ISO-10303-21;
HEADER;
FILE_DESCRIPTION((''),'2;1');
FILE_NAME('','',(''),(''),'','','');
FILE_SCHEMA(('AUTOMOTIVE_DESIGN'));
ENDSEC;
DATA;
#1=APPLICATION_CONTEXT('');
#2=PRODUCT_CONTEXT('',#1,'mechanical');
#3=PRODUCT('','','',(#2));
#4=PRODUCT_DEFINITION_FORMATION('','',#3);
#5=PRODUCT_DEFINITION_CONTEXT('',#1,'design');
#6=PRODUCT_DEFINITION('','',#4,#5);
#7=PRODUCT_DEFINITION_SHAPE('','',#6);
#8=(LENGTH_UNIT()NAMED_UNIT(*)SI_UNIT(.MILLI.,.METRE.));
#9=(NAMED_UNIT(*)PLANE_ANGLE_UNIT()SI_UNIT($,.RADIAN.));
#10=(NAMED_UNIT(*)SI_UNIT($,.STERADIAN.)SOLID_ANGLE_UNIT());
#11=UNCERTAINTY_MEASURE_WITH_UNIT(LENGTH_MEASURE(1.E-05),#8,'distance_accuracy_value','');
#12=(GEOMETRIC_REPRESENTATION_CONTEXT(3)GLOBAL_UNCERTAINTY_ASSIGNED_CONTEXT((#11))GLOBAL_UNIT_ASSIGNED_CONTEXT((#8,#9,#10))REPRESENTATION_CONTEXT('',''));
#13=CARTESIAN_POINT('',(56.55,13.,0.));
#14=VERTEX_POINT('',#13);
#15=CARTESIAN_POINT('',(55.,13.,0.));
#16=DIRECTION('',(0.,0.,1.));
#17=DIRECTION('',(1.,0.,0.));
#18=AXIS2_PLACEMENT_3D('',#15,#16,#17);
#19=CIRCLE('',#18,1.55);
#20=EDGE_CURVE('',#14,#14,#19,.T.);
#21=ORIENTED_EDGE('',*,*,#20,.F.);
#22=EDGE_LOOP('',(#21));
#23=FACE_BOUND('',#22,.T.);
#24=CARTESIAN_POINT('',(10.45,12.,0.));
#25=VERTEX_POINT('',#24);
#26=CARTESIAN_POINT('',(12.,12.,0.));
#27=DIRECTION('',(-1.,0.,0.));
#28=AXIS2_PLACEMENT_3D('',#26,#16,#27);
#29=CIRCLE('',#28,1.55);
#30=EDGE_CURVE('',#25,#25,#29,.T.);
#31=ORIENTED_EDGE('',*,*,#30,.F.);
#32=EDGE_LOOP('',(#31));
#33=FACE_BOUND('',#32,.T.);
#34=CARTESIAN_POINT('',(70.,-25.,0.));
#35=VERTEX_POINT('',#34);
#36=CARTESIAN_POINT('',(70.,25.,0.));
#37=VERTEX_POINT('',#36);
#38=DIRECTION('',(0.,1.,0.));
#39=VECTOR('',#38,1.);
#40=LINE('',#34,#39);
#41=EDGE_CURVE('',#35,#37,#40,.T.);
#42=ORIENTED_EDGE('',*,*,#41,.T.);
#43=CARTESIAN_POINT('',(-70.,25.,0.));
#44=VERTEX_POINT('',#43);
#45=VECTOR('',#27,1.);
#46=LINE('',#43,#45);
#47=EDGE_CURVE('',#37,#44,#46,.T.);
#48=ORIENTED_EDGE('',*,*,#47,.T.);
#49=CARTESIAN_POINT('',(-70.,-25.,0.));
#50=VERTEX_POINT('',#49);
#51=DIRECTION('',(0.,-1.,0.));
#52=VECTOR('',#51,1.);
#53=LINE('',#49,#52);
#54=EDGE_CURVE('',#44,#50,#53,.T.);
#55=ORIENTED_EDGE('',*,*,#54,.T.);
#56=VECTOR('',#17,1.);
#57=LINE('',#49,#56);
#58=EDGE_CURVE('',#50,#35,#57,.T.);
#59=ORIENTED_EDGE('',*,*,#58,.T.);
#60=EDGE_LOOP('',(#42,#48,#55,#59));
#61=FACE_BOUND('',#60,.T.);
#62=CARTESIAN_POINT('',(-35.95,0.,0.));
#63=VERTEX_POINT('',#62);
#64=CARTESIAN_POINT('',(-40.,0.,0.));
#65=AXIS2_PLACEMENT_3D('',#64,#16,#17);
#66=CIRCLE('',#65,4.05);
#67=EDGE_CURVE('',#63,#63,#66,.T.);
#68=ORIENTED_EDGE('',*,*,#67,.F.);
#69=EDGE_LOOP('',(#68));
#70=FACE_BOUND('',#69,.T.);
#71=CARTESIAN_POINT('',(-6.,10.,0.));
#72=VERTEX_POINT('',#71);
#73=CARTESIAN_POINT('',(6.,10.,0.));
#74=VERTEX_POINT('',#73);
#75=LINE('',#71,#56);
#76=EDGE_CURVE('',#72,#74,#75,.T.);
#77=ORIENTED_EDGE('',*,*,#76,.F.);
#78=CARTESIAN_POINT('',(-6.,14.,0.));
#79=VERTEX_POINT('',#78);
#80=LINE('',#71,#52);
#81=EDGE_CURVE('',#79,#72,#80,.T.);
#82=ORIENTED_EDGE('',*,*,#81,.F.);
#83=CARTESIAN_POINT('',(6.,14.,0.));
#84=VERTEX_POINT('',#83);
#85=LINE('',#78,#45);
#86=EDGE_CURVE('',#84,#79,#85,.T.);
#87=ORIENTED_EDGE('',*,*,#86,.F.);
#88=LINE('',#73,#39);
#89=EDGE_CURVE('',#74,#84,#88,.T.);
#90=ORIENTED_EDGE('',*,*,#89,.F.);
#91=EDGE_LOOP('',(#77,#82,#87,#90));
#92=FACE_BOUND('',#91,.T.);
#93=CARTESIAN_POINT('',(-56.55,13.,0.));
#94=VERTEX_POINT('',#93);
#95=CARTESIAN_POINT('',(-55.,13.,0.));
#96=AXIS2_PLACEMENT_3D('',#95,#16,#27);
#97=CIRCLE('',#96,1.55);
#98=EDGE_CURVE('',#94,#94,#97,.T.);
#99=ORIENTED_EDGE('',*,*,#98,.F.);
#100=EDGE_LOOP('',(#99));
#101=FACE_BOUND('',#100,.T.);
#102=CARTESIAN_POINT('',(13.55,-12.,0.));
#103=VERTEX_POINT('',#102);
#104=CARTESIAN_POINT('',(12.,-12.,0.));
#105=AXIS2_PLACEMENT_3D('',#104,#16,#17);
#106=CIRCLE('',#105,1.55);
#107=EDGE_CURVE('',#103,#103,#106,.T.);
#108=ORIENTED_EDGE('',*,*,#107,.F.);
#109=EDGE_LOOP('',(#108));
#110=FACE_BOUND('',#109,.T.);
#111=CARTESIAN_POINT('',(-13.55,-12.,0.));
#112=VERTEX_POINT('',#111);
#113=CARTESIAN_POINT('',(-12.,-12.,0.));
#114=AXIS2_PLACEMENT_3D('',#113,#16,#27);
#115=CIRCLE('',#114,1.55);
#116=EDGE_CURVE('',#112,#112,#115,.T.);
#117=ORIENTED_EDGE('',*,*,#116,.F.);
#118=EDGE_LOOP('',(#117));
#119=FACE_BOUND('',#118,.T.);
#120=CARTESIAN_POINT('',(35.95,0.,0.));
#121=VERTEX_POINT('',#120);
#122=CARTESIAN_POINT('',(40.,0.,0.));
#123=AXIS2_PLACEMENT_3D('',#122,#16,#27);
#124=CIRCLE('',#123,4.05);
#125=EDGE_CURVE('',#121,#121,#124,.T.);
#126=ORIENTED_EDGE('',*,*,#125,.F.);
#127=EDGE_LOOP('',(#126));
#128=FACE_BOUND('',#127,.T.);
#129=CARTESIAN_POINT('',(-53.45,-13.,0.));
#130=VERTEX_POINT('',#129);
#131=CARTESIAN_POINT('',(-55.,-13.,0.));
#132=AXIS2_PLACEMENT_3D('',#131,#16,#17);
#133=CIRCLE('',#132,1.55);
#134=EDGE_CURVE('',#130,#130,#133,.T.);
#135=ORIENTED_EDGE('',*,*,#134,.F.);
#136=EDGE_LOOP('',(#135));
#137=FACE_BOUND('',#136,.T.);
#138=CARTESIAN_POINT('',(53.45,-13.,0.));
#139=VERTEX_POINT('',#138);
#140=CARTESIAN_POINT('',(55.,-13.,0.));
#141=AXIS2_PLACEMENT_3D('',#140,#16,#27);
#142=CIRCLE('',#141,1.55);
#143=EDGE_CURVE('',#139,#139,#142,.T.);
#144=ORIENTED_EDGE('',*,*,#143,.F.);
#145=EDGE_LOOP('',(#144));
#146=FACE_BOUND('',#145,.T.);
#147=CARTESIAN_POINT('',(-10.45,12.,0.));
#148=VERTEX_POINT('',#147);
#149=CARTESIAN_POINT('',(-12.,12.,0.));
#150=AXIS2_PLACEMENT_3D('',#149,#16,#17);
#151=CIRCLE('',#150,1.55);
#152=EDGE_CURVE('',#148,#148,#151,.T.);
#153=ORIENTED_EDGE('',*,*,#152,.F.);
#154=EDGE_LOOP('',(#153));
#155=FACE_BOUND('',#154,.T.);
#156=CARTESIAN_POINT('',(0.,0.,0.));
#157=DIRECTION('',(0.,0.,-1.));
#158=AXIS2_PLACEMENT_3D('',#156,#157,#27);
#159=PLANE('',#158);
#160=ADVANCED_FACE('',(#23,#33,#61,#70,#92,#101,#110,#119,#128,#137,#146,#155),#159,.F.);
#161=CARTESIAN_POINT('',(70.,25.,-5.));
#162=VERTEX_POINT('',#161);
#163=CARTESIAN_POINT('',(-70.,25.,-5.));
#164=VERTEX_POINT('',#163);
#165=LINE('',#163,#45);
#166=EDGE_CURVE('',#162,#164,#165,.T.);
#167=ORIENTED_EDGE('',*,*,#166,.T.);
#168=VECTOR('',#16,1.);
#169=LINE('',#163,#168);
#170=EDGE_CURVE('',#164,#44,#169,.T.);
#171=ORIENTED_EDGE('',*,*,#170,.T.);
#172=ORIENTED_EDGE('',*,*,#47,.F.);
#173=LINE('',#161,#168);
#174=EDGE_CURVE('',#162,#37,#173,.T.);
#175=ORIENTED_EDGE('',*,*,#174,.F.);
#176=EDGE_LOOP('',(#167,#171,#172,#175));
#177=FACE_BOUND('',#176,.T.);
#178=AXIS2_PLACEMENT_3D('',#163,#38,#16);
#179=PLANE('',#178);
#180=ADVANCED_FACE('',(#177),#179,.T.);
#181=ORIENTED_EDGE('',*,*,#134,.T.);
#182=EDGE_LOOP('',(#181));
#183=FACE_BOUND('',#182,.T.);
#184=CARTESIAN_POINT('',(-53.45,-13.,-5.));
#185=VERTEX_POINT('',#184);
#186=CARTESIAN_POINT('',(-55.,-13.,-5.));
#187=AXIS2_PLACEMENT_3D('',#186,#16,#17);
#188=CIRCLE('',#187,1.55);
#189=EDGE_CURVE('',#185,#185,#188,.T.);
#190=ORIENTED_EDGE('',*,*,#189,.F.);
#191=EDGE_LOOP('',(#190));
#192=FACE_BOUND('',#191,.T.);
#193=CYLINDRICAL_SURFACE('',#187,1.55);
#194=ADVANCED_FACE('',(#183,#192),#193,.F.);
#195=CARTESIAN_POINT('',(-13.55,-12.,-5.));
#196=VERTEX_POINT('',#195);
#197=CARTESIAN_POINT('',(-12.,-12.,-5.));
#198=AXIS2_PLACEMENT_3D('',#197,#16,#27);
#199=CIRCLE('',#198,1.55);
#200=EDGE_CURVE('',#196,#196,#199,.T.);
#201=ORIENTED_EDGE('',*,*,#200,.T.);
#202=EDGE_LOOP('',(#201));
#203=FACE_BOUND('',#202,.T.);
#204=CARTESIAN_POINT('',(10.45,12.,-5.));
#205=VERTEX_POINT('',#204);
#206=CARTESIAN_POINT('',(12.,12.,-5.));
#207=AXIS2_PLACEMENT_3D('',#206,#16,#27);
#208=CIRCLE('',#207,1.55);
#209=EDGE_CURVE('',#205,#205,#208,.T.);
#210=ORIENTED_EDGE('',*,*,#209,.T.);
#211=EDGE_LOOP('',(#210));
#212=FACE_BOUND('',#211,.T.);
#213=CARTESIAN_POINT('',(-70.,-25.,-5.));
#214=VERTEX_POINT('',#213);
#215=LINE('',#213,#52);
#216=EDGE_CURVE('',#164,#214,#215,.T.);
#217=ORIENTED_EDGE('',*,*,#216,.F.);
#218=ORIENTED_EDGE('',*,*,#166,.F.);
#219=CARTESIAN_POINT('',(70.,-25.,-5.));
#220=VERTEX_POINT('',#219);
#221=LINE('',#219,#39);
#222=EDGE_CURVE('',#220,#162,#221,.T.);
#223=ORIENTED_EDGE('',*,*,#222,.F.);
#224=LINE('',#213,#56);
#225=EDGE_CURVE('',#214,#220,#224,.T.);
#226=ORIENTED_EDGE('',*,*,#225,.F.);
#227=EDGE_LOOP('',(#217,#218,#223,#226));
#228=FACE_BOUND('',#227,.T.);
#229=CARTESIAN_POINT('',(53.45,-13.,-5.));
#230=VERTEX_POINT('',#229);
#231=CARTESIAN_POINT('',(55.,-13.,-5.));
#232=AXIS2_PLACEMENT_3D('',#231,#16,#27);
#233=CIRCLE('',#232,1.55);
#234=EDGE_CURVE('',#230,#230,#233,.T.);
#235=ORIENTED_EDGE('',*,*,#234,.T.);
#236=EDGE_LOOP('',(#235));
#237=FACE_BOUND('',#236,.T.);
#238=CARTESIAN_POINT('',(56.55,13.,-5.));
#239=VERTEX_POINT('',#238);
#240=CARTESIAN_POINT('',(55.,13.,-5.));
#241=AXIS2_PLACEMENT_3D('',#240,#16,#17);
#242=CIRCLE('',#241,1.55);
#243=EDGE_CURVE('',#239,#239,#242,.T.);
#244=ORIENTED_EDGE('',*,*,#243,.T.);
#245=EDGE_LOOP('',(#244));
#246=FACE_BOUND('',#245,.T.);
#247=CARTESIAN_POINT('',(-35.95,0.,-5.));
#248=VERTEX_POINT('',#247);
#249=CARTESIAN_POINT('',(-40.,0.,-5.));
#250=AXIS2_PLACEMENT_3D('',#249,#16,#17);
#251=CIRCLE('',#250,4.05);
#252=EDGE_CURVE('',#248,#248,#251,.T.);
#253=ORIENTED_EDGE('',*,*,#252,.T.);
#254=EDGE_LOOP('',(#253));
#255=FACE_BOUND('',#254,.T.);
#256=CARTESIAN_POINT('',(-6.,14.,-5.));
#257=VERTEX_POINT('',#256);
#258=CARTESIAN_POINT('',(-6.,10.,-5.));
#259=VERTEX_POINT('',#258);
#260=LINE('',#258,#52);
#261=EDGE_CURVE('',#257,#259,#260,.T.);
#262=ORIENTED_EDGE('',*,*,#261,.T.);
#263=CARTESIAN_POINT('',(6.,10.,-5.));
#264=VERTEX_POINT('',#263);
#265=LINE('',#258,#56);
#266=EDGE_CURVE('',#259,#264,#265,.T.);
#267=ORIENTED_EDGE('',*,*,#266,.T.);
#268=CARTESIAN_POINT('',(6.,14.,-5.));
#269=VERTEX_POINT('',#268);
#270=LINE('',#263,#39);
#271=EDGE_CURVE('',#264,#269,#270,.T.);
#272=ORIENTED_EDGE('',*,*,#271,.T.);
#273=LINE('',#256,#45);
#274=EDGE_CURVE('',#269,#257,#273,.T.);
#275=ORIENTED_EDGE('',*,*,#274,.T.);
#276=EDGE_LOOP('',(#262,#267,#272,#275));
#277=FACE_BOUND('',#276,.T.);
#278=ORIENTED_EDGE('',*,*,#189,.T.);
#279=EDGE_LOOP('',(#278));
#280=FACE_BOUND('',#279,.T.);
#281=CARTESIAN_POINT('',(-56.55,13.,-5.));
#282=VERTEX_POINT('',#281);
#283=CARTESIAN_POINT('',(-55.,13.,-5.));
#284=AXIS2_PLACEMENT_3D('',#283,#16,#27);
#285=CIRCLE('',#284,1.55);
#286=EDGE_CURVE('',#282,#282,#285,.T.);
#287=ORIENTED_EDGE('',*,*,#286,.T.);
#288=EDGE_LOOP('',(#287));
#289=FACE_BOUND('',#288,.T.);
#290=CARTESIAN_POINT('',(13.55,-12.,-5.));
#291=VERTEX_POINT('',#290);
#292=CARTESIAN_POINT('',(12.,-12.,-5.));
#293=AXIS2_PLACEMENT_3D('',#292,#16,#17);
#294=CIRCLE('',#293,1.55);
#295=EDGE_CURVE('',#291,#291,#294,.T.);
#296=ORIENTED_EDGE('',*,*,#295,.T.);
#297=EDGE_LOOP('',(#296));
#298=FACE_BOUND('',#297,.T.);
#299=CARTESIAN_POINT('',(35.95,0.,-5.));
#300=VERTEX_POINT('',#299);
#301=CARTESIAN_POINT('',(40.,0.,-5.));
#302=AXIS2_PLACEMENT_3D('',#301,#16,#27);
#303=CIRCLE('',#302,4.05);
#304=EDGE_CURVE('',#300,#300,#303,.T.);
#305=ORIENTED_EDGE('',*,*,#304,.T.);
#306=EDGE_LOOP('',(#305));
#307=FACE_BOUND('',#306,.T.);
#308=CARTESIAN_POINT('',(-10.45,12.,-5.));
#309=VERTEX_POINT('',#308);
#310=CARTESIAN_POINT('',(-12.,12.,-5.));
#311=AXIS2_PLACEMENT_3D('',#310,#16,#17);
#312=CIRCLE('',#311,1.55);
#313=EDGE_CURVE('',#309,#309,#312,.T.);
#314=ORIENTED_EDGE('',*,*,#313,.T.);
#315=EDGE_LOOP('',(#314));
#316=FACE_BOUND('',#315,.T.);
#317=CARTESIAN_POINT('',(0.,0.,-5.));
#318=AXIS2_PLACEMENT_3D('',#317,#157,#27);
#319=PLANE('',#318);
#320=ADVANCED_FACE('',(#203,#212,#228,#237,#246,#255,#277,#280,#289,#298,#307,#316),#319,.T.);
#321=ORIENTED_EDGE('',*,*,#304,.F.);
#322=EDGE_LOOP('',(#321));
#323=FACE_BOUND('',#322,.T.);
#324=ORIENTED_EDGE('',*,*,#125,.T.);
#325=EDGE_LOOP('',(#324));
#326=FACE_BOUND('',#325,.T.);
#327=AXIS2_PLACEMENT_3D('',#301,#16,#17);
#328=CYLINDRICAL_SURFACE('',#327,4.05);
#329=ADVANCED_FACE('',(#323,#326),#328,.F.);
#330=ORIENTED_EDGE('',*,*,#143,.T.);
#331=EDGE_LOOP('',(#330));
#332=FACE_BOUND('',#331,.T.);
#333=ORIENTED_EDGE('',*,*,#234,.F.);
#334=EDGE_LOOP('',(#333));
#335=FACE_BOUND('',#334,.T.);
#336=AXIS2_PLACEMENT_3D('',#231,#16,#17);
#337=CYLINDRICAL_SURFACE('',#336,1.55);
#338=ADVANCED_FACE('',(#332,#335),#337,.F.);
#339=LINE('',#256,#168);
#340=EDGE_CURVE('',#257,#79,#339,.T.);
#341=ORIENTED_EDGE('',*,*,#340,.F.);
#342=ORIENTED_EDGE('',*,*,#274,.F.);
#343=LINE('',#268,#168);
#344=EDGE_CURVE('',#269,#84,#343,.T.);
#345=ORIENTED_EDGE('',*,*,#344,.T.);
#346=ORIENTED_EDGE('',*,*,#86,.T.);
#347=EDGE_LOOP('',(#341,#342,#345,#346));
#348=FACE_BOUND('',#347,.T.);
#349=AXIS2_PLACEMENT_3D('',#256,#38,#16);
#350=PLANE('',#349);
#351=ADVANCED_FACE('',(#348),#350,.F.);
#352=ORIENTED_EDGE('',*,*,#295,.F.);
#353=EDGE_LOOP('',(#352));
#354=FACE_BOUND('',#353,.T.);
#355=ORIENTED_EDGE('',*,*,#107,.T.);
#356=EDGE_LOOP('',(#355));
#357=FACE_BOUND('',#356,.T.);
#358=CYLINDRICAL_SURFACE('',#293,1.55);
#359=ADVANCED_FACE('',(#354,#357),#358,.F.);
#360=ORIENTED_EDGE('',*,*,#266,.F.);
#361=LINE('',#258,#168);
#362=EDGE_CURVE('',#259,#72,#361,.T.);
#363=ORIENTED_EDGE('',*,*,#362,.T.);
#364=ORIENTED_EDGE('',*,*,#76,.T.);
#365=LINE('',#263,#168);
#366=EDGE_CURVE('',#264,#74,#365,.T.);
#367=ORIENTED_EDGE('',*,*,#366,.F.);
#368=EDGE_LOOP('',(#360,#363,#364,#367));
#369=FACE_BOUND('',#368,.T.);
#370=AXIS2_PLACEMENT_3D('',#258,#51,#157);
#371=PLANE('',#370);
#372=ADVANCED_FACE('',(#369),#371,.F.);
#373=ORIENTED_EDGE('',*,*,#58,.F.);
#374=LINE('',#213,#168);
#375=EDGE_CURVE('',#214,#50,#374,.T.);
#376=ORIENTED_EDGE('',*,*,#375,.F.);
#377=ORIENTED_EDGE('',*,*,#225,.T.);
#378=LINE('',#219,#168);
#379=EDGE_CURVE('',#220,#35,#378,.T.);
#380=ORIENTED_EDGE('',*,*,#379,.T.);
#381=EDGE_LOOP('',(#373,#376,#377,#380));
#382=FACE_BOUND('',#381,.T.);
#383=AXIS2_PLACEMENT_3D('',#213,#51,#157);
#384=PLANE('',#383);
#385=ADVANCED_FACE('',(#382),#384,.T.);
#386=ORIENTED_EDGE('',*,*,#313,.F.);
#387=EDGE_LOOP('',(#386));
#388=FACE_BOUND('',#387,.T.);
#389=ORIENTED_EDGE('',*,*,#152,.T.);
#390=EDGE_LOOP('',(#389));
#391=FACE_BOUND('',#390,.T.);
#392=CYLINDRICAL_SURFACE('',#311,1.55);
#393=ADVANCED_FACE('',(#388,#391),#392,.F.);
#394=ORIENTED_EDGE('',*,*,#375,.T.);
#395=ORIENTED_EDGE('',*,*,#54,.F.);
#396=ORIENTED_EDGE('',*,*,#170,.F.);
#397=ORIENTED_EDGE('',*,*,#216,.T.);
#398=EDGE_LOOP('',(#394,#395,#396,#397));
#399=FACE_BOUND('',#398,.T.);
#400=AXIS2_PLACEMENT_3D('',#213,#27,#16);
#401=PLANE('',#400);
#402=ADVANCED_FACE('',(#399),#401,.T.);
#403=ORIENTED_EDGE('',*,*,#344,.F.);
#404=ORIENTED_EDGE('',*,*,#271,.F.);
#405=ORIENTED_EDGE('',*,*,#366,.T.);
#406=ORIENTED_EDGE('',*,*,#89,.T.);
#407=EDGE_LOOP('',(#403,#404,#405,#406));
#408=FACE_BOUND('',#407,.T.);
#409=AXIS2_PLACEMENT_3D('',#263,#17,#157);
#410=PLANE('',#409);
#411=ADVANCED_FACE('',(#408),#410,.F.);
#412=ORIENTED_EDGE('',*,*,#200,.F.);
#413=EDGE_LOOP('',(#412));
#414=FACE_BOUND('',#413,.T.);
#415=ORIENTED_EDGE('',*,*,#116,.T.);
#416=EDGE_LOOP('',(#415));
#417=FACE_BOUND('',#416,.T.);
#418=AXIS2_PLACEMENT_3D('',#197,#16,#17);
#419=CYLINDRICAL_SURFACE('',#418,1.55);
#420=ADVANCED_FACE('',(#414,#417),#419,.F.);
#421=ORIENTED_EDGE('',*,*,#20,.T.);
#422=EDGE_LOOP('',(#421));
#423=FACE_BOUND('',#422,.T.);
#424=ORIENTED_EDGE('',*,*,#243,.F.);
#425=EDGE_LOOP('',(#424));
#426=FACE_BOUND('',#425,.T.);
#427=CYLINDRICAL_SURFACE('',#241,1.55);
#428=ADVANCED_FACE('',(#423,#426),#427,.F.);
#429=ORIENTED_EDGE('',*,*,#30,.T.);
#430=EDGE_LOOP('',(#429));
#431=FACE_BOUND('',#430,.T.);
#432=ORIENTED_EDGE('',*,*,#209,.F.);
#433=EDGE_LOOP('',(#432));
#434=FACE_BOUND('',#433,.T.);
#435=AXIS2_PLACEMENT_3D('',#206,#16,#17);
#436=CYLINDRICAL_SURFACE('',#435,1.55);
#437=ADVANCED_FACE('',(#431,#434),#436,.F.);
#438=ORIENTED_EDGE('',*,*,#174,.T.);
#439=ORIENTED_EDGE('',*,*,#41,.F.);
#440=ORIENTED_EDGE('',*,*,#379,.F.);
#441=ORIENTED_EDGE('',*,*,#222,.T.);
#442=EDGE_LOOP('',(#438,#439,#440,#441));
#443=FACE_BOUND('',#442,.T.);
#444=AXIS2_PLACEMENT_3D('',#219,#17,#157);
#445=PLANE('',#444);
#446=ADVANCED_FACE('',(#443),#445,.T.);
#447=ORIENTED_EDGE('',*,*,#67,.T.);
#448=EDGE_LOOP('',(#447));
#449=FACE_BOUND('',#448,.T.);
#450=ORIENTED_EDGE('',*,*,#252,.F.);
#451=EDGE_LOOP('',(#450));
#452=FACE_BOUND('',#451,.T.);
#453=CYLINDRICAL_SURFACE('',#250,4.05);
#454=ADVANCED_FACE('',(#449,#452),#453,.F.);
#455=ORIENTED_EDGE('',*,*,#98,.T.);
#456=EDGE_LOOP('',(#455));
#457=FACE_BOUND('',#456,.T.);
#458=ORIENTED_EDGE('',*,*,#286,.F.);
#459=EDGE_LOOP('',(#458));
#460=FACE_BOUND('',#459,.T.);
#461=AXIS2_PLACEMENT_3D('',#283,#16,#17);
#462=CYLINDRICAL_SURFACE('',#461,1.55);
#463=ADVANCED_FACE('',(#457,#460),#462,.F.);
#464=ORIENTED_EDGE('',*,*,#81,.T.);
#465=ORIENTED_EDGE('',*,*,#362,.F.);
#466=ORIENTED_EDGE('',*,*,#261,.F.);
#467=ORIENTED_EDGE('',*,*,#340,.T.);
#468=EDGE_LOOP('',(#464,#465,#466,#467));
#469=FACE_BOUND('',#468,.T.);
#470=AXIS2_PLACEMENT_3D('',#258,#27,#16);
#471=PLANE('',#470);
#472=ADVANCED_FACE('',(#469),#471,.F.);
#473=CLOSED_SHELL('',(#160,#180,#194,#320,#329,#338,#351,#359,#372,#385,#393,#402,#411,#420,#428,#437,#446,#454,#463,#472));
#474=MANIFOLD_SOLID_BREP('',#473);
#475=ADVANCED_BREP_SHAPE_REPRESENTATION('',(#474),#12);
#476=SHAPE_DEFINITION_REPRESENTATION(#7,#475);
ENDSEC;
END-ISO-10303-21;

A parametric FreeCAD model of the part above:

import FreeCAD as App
import Part
import Sketcher


def add_polygon(sketch, points):
    """Adds a closed chain of lines whose ends are joined by coincident constraints."""
    first, n = sketch.GeometryCount, len(points)
    for a, b in zip(points, points[1:] + points[:1]):
        sketch.addGeometry(Part.LineSegment(App.Vector(*a, 0), App.Vector(*b, 0)), False)
    for i in range(n):
        sketch.addConstraint(Sketcher.Constraint("Coincident", first + i, 2, first + (i + 1) % n, 1))

doc = App.newDocument("Part")
body = doc.addObject("PartDesign::Body", "Body")

# Sketch on XY plane
sketch1 = body.newObject("Sketcher::SketchObject", "Sketch")
sketch1.AttachmentSupport = (doc.getObject("XY_Plane"), [""])
sketch1.MapMode = "FlatFace"
add_polygon(sketch1, [(-70, 25), (-70, -25), (70, -25), (70, 25)])  # lines 0-3
sketch1.addGeometry(Part.Circle(App.Vector(-55, -13, 0), App.Vector(0, 0, 1), 1.6), False)  # 4
sketch1.addGeometry(Part.Circle(App.Vector(-12, -12, 0), App.Vector(0, 0, 1), 1.6), False)  # 5
sketch1.addGeometry(Part.Circle(App.Vector(12, -12, 0), App.Vector(0, 0, 1), 1.6), False)  # 6
sketch1.addGeometry(Part.Circle(App.Vector(55, -13, 0), App.Vector(0, 0, 1), 1.6), False)  # 7
sketch1.addGeometry(Part.Circle(App.Vector(-40, 0, 0), App.Vector(0, 0, 1), 4), False)  # 8
sketch1.addGeometry(Part.Circle(App.Vector(-55, 13, 0), App.Vector(0, 0, 1), 1.6), False)  # 9
sketch1.addGeometry(Part.Circle(App.Vector(-12, 12, 0), App.Vector(0, 0, 1), 1.6), False)  # 10
sketch1.addGeometry(Part.Circle(App.Vector(40, 0, 0), App.Vector(0, 0, 1), 4), False)  # 11
add_polygon(sketch1, [(6, 10), (-6, 10), (-6, 14), (6, 14)])  # lines 12-15
sketch1.addGeometry(Part.Circle(App.Vector(12, 12, 0), App.Vector(0, 0, 1), 1.6), False)  # 16
sketch1.addGeometry(Part.Circle(App.Vector(55, 13, 0), App.Vector(0, 0, 1), 1.6), False)  # 17
sketch1.addConstraint(Sketcher.Constraint("Vertical", 0))
sketch1.addConstraint(Sketcher.Constraint("Horizontal", 1))
sketch1.addConstraint(Sketcher.Constraint("Vertical", 2))
sketch1.addConstraint(Sketcher.Constraint("Horizontal", 3))
sketch1.addConstraint(Sketcher.Constraint("Horizontal", 12))
sketch1.addConstraint(Sketcher.Constraint("Vertical", 13))
sketch1.addConstraint(Sketcher.Constraint("Horizontal", 14))
sketch1.addConstraint(Sketcher.Constraint("Vertical", 15))
sketch1.addConstraint(Sketcher.Constraint("Equal", 4, 5))
sketch1.addConstraint(Sketcher.Constraint("Equal", 5, 6))
sketch1.addConstraint(Sketcher.Constraint("Equal", 6, 7))
sketch1.addConstraint(Sketcher.Constraint("Equal", 7, 9))
sketch1.addConstraint(Sketcher.Constraint("Equal", 9, 10))
sketch1.addConstraint(Sketcher.Constraint("Equal", 8, 11))
sketch1.addConstraint(Sketcher.Constraint("Equal", 10, 16))
sketch1.addConstraint(Sketcher.Constraint("Equal", 16, 17))
sketch1.addConstraint(Sketcher.Constraint("Symmetric", 7, 3, 9, 3, -1, 1))
sketch1.addConstraint(Sketcher.Constraint("Symmetric", 6, 3, 10, 3, -1, 1))
sketch1.addConstraint(Sketcher.Constraint("Symmetric", 8, 3, 11, 3, -1, 1))
sketch1.addConstraint(Sketcher.Constraint("Symmetric", 5, 3, 16, 3, -1, 1))
sketch1.addConstraint(Sketcher.Constraint("Symmetric", 4, 3, 17, 3, -1, 1))
sketch1.addConstraint(Sketcher.Constraint("Symmetric", 0, 2, 2, 2, -1, 1))
sketch1.addConstraint(Sketcher.Constraint("Symmetric", 5, 3, 6, 3, -2))
sketch1.addConstraint(Sketcher.Constraint("Symmetric", 4, 3, 7, 3, -2))
sketch1.addConstraint(Sketcher.Constraint("PointOnObject", 8, 3, -1))
sketch1.addConstraint(Sketcher.Constraint("Diameter", 4, 3.1))
sketch1.addConstraint(Sketcher.Constraint("Diameter", 8, 8.1))
sketch1.addConstraint(Sketcher.Constraint("DistanceX", 1, 1, 1, 2, 140.0))
sketch1.addConstraint(Sketcher.Constraint("DistanceX", 12, 2, 12, 1, 12.0))
sketch1.addConstraint(Sketcher.Constraint("DistanceY", 0, 2, 0, 1, 50.0))
sketch1.addConstraint(Sketcher.Constraint("DistanceY", 13, 1, 13, 2, 4.0))
sketch1.addConstraint(Sketcher.Constraint("DistanceX", 4, 3, -1, 1, 55.0))
sketch1.addConstraint(Sketcher.Constraint("DistanceY", 4, 3, -1, 1, 13.0))
sketch1.addConstraint(Sketcher.Constraint("DistanceX", 5, 3, -1, 1, 12.0))
sketch1.addConstraint(Sketcher.Constraint("DistanceY", 5, 3, -1, 1, 12.0))
sketch1.addConstraint(Sketcher.Constraint("DistanceX", 8, 3, -1, 1, 40.0))
sketch1.addConstraint(Sketcher.Constraint("DistanceX", 12, 2, -1, 1, 6.0))
sketch1.addConstraint(Sketcher.Constraint("DistanceY", -1, 1, 12, 2, 10.0))
pad1 = body.newObject("PartDesign::Pad", "Pad")
pad1.Profile = sketch1
pad1.Length = 5
pad1.Reversed = True

doc.recompute()
